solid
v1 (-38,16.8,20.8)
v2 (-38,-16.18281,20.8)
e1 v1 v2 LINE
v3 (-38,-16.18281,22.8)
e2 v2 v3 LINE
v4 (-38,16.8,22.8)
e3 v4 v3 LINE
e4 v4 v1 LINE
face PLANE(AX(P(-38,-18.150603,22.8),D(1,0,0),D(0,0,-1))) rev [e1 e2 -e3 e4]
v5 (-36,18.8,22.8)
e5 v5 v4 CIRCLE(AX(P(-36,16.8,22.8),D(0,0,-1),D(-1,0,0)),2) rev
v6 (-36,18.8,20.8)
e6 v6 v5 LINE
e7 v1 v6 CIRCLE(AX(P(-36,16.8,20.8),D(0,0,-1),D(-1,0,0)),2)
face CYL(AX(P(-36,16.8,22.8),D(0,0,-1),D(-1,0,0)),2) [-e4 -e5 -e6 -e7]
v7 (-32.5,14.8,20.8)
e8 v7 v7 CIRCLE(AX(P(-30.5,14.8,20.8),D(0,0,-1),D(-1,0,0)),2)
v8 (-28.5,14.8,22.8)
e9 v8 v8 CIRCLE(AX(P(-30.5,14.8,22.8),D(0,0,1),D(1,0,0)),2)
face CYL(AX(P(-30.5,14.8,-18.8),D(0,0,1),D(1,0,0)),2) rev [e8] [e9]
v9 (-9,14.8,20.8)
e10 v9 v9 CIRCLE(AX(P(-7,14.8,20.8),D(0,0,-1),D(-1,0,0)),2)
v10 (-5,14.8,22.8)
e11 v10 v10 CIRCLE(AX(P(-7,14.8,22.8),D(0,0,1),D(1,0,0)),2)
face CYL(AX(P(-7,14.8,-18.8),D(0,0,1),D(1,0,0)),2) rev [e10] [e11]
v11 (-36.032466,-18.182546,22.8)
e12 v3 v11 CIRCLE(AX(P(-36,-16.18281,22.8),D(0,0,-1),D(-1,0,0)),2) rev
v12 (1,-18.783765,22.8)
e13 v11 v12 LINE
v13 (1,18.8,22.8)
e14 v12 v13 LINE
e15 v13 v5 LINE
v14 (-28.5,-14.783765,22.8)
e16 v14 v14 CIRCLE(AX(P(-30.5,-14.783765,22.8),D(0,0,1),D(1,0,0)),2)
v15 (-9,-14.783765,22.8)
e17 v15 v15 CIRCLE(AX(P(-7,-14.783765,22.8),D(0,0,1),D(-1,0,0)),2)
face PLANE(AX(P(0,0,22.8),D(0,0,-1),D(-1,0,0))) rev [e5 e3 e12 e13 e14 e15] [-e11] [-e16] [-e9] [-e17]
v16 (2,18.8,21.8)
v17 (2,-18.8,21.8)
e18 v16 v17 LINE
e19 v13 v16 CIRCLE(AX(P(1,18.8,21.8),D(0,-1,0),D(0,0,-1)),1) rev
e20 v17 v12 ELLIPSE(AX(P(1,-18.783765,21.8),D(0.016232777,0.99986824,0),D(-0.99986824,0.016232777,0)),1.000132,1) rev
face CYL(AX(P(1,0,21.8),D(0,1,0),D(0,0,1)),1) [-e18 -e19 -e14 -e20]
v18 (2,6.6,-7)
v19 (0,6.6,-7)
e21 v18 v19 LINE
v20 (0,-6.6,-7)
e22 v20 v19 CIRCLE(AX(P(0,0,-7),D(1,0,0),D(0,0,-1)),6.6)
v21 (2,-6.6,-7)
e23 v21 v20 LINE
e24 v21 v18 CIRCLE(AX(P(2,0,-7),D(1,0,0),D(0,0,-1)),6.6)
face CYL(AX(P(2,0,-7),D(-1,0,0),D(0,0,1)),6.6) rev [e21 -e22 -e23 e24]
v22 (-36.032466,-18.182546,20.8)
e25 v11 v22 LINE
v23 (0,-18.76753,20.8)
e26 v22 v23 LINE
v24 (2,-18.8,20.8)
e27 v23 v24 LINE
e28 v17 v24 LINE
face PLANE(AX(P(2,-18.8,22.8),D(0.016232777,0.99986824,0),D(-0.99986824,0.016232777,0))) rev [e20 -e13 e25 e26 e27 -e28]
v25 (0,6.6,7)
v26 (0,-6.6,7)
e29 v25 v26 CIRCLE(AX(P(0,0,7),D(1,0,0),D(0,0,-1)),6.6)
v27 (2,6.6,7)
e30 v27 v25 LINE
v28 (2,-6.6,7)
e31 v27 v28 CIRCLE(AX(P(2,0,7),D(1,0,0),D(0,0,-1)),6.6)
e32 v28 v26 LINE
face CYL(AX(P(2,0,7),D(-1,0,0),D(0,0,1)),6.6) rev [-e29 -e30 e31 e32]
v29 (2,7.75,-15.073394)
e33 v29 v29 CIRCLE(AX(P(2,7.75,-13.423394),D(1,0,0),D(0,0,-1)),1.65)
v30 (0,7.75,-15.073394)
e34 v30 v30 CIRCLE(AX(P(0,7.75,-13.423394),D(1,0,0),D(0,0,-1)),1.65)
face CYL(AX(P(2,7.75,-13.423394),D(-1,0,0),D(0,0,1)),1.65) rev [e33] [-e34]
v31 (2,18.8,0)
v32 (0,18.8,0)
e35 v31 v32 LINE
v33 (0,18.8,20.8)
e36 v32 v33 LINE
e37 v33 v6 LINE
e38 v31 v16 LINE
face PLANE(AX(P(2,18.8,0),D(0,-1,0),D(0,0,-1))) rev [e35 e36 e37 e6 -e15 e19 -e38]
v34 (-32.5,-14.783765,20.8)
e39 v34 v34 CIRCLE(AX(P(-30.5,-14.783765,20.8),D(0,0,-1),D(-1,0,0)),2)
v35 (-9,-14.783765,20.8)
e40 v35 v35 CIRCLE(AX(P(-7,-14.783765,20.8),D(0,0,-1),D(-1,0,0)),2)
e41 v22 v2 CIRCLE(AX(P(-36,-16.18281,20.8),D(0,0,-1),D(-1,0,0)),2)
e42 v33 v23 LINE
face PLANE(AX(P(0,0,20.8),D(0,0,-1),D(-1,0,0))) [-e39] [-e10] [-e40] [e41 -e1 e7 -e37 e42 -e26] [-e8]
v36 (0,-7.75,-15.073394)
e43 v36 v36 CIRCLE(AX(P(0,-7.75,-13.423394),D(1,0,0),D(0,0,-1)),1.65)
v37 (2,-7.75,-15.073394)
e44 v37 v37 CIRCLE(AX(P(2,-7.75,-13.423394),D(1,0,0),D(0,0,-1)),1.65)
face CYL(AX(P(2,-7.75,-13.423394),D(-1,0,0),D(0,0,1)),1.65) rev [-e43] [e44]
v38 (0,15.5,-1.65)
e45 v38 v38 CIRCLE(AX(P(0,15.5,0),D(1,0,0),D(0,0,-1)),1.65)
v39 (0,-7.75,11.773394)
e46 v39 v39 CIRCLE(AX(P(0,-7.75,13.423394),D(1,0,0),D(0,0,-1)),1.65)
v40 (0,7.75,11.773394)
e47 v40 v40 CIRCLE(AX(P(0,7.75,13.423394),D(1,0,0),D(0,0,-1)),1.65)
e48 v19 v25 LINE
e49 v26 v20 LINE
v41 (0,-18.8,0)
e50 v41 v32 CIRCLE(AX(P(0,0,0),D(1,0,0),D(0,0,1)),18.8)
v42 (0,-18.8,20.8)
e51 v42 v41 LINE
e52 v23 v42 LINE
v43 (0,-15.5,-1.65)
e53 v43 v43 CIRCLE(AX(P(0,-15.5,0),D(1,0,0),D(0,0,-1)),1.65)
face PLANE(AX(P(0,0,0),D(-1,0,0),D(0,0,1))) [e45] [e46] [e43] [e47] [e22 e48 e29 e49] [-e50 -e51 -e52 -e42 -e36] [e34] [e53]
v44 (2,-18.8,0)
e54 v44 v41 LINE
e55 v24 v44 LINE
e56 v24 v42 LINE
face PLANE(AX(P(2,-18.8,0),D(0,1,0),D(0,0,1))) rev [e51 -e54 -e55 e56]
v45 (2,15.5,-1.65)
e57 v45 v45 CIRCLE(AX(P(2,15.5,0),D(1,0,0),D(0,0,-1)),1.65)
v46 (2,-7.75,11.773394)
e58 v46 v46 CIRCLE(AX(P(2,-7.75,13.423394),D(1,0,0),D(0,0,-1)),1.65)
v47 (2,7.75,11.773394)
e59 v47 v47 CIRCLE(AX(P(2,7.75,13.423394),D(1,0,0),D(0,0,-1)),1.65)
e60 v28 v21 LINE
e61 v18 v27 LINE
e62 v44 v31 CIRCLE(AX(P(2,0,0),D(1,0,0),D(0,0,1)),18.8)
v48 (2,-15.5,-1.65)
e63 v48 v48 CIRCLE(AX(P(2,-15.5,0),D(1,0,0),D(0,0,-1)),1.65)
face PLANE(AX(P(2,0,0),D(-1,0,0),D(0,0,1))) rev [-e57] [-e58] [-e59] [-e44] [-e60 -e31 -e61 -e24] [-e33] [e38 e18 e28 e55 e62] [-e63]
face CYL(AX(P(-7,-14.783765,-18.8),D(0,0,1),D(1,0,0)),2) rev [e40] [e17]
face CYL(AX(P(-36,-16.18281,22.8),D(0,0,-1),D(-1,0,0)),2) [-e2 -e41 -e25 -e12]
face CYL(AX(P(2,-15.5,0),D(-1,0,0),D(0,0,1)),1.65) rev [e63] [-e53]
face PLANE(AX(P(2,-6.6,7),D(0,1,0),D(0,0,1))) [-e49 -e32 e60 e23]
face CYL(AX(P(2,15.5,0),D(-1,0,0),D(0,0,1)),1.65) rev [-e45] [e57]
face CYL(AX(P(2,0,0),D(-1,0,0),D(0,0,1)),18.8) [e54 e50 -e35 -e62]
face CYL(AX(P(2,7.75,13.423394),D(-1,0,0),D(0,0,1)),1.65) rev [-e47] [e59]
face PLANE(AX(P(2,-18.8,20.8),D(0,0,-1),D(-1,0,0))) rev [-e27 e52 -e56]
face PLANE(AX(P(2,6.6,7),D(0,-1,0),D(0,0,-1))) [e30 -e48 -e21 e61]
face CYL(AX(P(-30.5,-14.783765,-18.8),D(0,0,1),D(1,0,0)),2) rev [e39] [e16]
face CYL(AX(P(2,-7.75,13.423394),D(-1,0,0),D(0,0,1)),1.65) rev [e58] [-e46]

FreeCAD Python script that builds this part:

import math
import FreeCAD as App
import Part
import Sketcher
from FreeCAD import Vector


def edges_at(feature, points):
    """Names of the edges that pass closest to the given points."""
    edges = feature.Shape.Edges
    near = lambda p: min(range(len(edges)), key=lambda i: edges[i].distToShape(Part.Vertex(*p))[0])
    return sorted({f"Edge{near(p) + 1}" for p in points})


def add_polygon(sketch, points):
    """Adds a closed chain of lines whose ends are joined by coincident constraints."""
    first, n = sketch.GeometryCount, len(points)
    for a, b in zip(points, points[1:] + points[:1]):
        sketch.addGeometry(Part.LineSegment(App.Vector(*a, 0), App.Vector(*b, 0)), False)
    for i in range(n):
        sketch.addConstraint(Sketcher.Constraint("Coincident", first + i, 2, first + (i + 1) % n, 1))

doc = App.newDocument("Part")
body = doc.addObject("PartDesign::Body", "Body")

# Sketch on YZ plane
sketch1 = doc.addObject("Sketcher::SketchObject", "Sketch")
body.addObject(sketch1)
sketch1.AttachmentSupport = (doc.YZ_Plane, [""])
sketch1.MapMode = "FlatFace"
sketch1.addGeometry([
    Part.LineSegment(Vector(18.8, 0, 0), Vector(18.8, 20.8, 0)),  # 0
    Part.LineSegment(Vector(18.8, 20.8, 0), Vector(-18.8, 20.8, 0)),  # 1
    Part.LineSegment(Vector(-18.8, 20.8, 0), Vector(-18.8, 0, 0)),  # 2
    Part.ArcOfCircle(Part.Circle(Vector(0, 0, 0), Vector(0, 0, 1), 18.8), math.radians(180), math.radians(360)),  # 3
    Part.Circle(Vector(-7.75, 13.423394, 0), Vector(0, 0, 1), 1.65),  # 4
    Part.Circle(Vector(-15.5, 0, 0), Vector(0, 0, 1), 1.65),  # 5
    Part.Circle(Vector(-7.75, -13.423394, 0), Vector(0, 0, 1), 1.65),  # 6
    Part.Circle(Vector(7.75, 13.423394, 0), Vector(0, 0, 1), 1.65),  # 7
    Part.ArcOfCircle(Part.Circle(Vector(0, 7, 0), Vector(0, 0, 1), 6.6), math.radians(0), math.radians(180)),  # 8
    Part.LineSegment(Vector(6.6, 7, 0), Vector(6.6, -7, 0)),  # 9
    Part.ArcOfCircle(Part.Circle(Vector(0, -7, 0), Vector(0, 0, 1), 6.6), math.radians(180), math.radians(360)),  # 10
    Part.LineSegment(Vector(-6.6, -7, 0), Vector(-6.6, 7, 0)),  # 11
    Part.Circle(Vector(7.75, -13.423394, 0), Vector(0, 0, 1), 1.65),  # 12
    Part.Circle(Vector(15.5, 0, 0), Vector(0, 0, 1), 1.65),  # 13
], False)
sketch1.addConstraint([
    Sketcher.Constraint("Coincident", 0, 2, 1, 1),
    Sketcher.Constraint("Coincident", 1, 2, 2, 1),
    Sketcher.Constraint("Tangent", 2, 2, 3, 1),
    Sketcher.Constraint("Tangent", 3, 2, 0, 1),
    Sketcher.Constraint("Tangent", 8, 1, 9, 1),
    Sketcher.Constraint("Tangent", 9, 2, 10, 2),
    Sketcher.Constraint("Tangent", 10, 1, 11, 1),
    Sketcher.Constraint("Tangent", 11, 2, 8, 2),
    Sketcher.Constraint("Vertical", 0),
    Sketcher.Constraint("Horizontal", 1),
    Sketcher.Constraint("Vertical", 2),
    Sketcher.Constraint("Vertical", 9),
    Sketcher.Constraint("Vertical", 11),
    Sketcher.Constraint("Coincident", 3, 3, -1, 1),
    Sketcher.Constraint("Equal", 4, 5),
    Sketcher.Constraint("Equal", 5, 6),
    Sketcher.Constraint("Equal", 6, 7),
    Sketcher.Constraint("Equal", 7, 12),
    Sketcher.Constraint("Equal", 12, 13),
    Sketcher.Constraint("Symmetric", 6, 3, 7, 3, -1, 1),
    Sketcher.Constraint("Symmetric", 8, 3, 10, 3, -1, 1),
    Sketcher.Constraint("Symmetric", 4, 3, 12, 3, -1, 1),
    Sketcher.Constraint("Symmetric", 5, 3, 13, 3, -1, 1),
    Sketcher.Constraint("Symmetric", 4, 3, 7, 3, -2),
    Sketcher.Constraint("PointOnObject", 5, 3, -1),
    Sketcher.Constraint("Diameter", 4, 3.3),
    Sketcher.Constraint("Radius", 3, 18.8),
    Sketcher.Constraint("Radius", 8, 6.6),
    Sketcher.Constraint("DistanceY", 9, 2, 9, 1, 14.0),
    Sketcher.Constraint("DistanceY", 0, 1, 0, 2, 20.8),
    Sketcher.Constraint("DistanceX", 5, 3, -1, 1, 15.5),
    Sketcher.Constraint("DistanceX", 4, 3, 7, 3, 15.5),
    Sketcher.Constraint("DistanceY", -1, 1, 4, 3, 13.423394),
])
pad1 = doc.addObject("PartDesign::Pad", "Pad")
body.addObject(pad1)
pad1.Profile = sketch1
pad1.Length = 2

# Sketch on XY plane
sketch2 = doc.addObject("Sketcher::SketchObject", "Sketch001")
body.addObject(sketch2)
sketch2.AttachmentSupport = (doc.XY_Plane, [""])
sketch2.MapMode = "FlatFace"
sketch2.AttachmentOffset = App.Placement(Vector(0, 0, 20.8), App.Rotation())
add_polygon(sketch2, [(2, 18.8), (-38, 18.8), (-38, -18.150603), (2, -18.8)])  # lines 0-3
sketch2.addConstraint([
    Sketcher.Constraint("Horizontal", 0),
    Sketcher.Constraint("Vertical", 1),
    Sketcher.Constraint("Vertical", 3),
    Sketcher.Constraint("DistanceX", 0, 2, 0, 1, 40.0),
    Sketcher.Constraint("DistanceY", 3, 1, 3, 2, 37.6),
    Sketcher.Constraint("DistanceX", 0, 2, -1, 1, 38.0),
    Sketcher.Constraint("DistanceY", -1, 1, 0, 2, 18.8),
    Sketcher.Constraint("Distance", 2, 40.005271),
])
pad2 = doc.addObject("PartDesign::Pad", "Pad001")
body.addObject(pad2)
pad2.Profile = sketch2
pad2.Length = 2
doc.recompute()

fillet = doc.addObject("PartDesign::Fillet", "Fillet")
body.addObject(fillet)
fillet.Base = (pad2, edges_at(pad2, [(2, 0, 22.8)]))
fillet.Radius = 1
doc.recompute()

fillet2 = doc.addObject("PartDesign::Fillet", "Fillet001")
body.addObject(fillet2)
fillet2.Base = (fillet, edges_at(fillet, [(-38, 18.8, 21.8), (-38, -18.151, 21.8)]))
fillet2.Radius = 2

# Sketch on XY plane
sketch3 = doc.addObject("Sketcher::SketchObject", "Sketch002")
body.addObject(sketch3)
sketch3.AttachmentSupport = (doc.XY_Plane, [""])
sketch3.MapMode = "FlatFace"
sketch3.AttachmentOffset = App.Placement(Vector(0, 0, 22.8), App.Rotation())
sketch3.addGeometry([
    Part.Circle(Vector(-7, 14.8, 0), Vector(0, 0, 1), 2),
    Part.Circle(Vector(-7, -14.783765, 0), Vector(0, 0, 1), 2),
    Part.Circle(Vector(-30.5, 14.8, 0), Vector(0, 0, 1), 2),
    Part.Circle(Vector(-30.5, -14.783765, 0), Vector(0, 0, 1), 2),
], False)
sketch3.addConstraint([
    Sketcher.Constraint("Equal", 0, 1),
    Sketcher.Constraint("Equal", 1, 2),
    Sketcher.Constraint("Equal", 2, 3),
    Sketcher.Constraint("Horizontal", 0, 3, 2, 3),
    Sketcher.Constraint("Horizontal", 1, 3, 3, 3),
    Sketcher.Constraint("Vertical", 0, 3, 1, 3),
    Sketcher.Constraint("Vertical", 2, 3, 3, 3),
    Sketcher.Constraint("Diameter", 0, 4.0),
    Sketcher.Constraint("DistanceX", 0, 3, -1, 1, 7.0),
    Sketcher.Constraint("DistanceY", -1, 1, 0, 3, 14.8),
    Sketcher.Constraint("DistanceX", 2, 3, -1, 1, 30.5),
    Sketcher.Constraint("DistanceY", 1, 3, -1, 1, 14.783765),
])
pocket1 = doc.addObject("PartDesign::Pocket", "Pocket")
body.addObject(pocket1)
pocket1.Profile = sketch3
pocket1.Type = "ThroughAll"

doc.recompute()
